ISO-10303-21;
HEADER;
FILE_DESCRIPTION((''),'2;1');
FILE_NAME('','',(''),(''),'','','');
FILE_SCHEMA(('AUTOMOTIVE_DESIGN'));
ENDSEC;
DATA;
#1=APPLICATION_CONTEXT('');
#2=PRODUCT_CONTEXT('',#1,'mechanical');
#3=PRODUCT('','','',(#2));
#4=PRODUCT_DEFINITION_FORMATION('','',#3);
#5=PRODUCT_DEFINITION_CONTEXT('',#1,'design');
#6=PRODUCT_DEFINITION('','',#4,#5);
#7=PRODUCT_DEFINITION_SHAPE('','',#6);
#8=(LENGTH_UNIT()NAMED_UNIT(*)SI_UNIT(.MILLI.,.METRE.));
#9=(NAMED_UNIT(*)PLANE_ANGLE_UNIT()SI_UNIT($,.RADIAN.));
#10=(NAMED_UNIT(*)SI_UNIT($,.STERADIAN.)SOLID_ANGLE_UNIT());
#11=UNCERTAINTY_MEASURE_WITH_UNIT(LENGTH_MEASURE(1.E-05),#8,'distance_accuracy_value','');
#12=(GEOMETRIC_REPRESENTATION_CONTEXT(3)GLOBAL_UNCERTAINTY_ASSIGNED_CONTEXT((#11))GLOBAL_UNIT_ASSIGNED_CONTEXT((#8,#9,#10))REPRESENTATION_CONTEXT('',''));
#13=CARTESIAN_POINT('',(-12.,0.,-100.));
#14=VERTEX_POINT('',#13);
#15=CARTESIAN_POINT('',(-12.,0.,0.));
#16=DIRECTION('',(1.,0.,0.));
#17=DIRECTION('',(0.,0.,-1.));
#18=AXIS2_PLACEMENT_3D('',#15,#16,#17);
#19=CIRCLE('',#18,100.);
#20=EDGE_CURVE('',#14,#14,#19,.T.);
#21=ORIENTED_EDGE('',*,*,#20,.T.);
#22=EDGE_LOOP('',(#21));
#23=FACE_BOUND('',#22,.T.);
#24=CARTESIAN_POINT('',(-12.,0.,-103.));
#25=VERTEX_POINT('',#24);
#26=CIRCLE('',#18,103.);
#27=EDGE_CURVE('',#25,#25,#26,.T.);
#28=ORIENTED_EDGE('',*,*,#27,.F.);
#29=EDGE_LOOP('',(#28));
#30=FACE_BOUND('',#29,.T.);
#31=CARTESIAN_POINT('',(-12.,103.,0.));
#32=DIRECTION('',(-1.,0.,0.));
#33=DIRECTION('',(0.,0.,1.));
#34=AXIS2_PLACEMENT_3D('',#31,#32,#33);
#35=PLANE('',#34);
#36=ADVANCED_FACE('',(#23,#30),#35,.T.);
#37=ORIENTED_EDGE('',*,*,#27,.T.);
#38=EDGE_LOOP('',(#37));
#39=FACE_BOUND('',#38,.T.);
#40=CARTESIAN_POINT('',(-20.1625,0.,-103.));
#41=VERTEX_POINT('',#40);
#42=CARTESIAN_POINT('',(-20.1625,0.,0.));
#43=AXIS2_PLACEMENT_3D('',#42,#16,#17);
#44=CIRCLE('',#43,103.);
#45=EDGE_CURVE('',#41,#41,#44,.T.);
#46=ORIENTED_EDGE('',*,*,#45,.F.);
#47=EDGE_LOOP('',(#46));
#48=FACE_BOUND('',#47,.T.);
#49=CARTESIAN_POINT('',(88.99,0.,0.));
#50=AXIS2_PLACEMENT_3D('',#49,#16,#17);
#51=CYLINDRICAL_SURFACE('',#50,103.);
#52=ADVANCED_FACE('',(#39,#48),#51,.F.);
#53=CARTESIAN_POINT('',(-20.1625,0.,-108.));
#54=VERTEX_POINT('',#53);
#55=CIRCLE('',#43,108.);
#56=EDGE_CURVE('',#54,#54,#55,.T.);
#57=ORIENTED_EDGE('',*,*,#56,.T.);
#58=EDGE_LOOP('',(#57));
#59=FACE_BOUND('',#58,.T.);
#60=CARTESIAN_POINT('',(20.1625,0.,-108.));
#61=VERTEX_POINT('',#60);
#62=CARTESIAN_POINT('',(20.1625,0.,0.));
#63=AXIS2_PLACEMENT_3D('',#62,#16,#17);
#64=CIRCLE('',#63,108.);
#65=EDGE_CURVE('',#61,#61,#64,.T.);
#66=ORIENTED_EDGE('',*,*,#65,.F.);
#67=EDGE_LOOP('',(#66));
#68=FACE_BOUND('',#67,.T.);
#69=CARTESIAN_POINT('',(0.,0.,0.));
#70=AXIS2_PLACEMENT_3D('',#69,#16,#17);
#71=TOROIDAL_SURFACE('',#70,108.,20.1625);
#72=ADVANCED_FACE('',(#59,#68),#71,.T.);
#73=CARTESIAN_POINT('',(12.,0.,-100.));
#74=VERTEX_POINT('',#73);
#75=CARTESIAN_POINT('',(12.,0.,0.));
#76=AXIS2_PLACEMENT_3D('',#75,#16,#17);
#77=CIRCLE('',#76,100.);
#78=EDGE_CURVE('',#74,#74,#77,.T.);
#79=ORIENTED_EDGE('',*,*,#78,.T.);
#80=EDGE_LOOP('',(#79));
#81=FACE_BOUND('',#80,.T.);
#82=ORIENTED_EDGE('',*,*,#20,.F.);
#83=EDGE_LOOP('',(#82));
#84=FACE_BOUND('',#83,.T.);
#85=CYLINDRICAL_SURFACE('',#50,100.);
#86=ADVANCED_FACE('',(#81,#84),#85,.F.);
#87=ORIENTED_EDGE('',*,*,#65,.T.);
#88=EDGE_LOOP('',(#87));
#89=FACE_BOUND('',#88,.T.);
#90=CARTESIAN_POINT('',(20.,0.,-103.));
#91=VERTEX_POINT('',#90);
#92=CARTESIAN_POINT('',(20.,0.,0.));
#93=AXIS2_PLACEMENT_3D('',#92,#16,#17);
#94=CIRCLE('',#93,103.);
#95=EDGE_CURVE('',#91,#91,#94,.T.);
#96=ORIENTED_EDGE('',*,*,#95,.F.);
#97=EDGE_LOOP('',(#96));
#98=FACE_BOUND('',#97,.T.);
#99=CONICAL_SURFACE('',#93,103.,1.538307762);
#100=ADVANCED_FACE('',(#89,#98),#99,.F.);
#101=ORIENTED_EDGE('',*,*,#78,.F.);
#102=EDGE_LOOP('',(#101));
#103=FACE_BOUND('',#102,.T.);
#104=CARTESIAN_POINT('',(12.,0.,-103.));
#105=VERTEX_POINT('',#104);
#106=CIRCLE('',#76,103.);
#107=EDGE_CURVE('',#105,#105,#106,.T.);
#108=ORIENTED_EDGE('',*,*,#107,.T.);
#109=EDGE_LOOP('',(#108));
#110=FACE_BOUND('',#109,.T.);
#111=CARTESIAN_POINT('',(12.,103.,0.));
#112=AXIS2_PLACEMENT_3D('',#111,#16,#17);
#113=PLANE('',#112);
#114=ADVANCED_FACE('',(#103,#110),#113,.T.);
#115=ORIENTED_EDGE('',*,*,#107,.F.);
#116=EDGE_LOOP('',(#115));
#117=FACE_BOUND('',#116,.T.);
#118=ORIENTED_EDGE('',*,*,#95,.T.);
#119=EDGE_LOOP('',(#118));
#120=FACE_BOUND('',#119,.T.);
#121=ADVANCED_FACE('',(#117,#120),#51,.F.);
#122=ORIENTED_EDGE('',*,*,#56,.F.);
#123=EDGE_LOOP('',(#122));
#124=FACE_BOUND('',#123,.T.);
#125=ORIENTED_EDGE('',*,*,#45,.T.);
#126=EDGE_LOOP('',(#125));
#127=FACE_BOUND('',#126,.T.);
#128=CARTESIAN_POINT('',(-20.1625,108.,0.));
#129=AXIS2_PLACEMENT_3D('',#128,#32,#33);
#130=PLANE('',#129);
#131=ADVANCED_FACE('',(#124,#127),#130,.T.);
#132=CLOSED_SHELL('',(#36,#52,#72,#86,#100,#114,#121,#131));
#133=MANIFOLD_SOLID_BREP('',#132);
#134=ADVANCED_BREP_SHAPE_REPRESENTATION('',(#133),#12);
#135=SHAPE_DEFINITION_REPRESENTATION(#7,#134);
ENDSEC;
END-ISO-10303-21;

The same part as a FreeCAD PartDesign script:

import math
import FreeCAD as App
import Part
import Sketcher

doc = App.newDocument("Part")
body = doc.addObject("PartDesign::Body", "Body")

sketch1 = body.newObject("Sketcher::SketchObject", "Sketch")
sketch1.AttachmentSupport = (doc.getObject("XY_Plane"), [""])
sketch1.MapMode = "FlatFace"
sketch1.addGeometry([
    Part.LineSegment(App.Vector(20, 103, 0), App.Vector(20.2, 108, 0)),
    Part.ArcOfCircle(Part.Circle(App.Vector(0, 108, 0), App.Vector(0, 0, 1), 20.2), math.radians(0), math.radians(180)),
    Part.LineSegment(App.Vector(-20.2, 108, 0), App.Vector(-20.2, 103, 0)),
    Part.LineSegment(App.Vector(-20.2, 103, 0), App.Vector(-12, 103, 0)),
    Part.LineSegment(App.Vector(-12, 103, 0), App.Vector(-12, 100, 0)),
    Part.LineSegment(App.Vector(-12, 100, 0), App.Vector(12, 100, 0)),
    Part.LineSegment(App.Vector(12, 100, 0), App.Vector(12, 103, 0)),
    Part.LineSegment(App.Vector(12, 103, 0), App.Vector(20, 103, 0)),
], False)
sketch1.addConstraint([
    Sketcher.Constraint("Coincident", 0, 2, 1, 1),
    Sketcher.Constraint("Tangent", 1, 2, 2, 1),
    Sketcher.Constraint("Coincident", 2, 2, 3, 1),
    Sketcher.Constraint("Coincident", 3, 2, 4, 1),
    Sketcher.Constraint("Coincident", 4, 2, 5, 1),
    Sketcher.Constraint("Coincident", 5, 2, 6, 1),
    Sketcher.Constraint("Coincident", 6, 2, 7, 1),
    Sketcher.Constraint("Coincident", 7, 2, 0, 1),
    Sketcher.Constraint("Vertical", 2),
    Sketcher.Constraint("Horizontal", 3),
    Sketcher.Constraint("Vertical", 4),
    Sketcher.Constraint("Horizontal", 5),
    Sketcher.Constraint("Vertical", 6),
    Sketcher.Constraint("Horizontal", 7),
    Sketcher.Constraint("Symmetric", 0, 2, 1, 2, -2),
    Sketcher.Constraint("Symmetric", 3, 2, 6, 2, -2),
    Sketcher.Constraint("DistanceX", 5, 1, 5, 2, 24.0),
    Sketcher.Constraint("DistanceX", 7, 1, 7, 2, 8.0),
    Sketcher.Constraint("DistanceY", 2, 2, 2, 1, 5.0),
    Sketcher.Constraint("DistanceY", 4, 2, 4, 1, 3.0),
    Sketcher.Constraint("DistanceY", -1, 1, 1, 3, 108.0),
    Sketcher.Constraint("Radius", 1, 20.1625),
])
revolution = body.newObject("PartDesign::Revolution", "Revolution")
revolution.Profile = sketch1
revolution.ReferenceAxis = (sketch1, ["H_Axis"])
revolution.Angle = 360

doc.recompute()
